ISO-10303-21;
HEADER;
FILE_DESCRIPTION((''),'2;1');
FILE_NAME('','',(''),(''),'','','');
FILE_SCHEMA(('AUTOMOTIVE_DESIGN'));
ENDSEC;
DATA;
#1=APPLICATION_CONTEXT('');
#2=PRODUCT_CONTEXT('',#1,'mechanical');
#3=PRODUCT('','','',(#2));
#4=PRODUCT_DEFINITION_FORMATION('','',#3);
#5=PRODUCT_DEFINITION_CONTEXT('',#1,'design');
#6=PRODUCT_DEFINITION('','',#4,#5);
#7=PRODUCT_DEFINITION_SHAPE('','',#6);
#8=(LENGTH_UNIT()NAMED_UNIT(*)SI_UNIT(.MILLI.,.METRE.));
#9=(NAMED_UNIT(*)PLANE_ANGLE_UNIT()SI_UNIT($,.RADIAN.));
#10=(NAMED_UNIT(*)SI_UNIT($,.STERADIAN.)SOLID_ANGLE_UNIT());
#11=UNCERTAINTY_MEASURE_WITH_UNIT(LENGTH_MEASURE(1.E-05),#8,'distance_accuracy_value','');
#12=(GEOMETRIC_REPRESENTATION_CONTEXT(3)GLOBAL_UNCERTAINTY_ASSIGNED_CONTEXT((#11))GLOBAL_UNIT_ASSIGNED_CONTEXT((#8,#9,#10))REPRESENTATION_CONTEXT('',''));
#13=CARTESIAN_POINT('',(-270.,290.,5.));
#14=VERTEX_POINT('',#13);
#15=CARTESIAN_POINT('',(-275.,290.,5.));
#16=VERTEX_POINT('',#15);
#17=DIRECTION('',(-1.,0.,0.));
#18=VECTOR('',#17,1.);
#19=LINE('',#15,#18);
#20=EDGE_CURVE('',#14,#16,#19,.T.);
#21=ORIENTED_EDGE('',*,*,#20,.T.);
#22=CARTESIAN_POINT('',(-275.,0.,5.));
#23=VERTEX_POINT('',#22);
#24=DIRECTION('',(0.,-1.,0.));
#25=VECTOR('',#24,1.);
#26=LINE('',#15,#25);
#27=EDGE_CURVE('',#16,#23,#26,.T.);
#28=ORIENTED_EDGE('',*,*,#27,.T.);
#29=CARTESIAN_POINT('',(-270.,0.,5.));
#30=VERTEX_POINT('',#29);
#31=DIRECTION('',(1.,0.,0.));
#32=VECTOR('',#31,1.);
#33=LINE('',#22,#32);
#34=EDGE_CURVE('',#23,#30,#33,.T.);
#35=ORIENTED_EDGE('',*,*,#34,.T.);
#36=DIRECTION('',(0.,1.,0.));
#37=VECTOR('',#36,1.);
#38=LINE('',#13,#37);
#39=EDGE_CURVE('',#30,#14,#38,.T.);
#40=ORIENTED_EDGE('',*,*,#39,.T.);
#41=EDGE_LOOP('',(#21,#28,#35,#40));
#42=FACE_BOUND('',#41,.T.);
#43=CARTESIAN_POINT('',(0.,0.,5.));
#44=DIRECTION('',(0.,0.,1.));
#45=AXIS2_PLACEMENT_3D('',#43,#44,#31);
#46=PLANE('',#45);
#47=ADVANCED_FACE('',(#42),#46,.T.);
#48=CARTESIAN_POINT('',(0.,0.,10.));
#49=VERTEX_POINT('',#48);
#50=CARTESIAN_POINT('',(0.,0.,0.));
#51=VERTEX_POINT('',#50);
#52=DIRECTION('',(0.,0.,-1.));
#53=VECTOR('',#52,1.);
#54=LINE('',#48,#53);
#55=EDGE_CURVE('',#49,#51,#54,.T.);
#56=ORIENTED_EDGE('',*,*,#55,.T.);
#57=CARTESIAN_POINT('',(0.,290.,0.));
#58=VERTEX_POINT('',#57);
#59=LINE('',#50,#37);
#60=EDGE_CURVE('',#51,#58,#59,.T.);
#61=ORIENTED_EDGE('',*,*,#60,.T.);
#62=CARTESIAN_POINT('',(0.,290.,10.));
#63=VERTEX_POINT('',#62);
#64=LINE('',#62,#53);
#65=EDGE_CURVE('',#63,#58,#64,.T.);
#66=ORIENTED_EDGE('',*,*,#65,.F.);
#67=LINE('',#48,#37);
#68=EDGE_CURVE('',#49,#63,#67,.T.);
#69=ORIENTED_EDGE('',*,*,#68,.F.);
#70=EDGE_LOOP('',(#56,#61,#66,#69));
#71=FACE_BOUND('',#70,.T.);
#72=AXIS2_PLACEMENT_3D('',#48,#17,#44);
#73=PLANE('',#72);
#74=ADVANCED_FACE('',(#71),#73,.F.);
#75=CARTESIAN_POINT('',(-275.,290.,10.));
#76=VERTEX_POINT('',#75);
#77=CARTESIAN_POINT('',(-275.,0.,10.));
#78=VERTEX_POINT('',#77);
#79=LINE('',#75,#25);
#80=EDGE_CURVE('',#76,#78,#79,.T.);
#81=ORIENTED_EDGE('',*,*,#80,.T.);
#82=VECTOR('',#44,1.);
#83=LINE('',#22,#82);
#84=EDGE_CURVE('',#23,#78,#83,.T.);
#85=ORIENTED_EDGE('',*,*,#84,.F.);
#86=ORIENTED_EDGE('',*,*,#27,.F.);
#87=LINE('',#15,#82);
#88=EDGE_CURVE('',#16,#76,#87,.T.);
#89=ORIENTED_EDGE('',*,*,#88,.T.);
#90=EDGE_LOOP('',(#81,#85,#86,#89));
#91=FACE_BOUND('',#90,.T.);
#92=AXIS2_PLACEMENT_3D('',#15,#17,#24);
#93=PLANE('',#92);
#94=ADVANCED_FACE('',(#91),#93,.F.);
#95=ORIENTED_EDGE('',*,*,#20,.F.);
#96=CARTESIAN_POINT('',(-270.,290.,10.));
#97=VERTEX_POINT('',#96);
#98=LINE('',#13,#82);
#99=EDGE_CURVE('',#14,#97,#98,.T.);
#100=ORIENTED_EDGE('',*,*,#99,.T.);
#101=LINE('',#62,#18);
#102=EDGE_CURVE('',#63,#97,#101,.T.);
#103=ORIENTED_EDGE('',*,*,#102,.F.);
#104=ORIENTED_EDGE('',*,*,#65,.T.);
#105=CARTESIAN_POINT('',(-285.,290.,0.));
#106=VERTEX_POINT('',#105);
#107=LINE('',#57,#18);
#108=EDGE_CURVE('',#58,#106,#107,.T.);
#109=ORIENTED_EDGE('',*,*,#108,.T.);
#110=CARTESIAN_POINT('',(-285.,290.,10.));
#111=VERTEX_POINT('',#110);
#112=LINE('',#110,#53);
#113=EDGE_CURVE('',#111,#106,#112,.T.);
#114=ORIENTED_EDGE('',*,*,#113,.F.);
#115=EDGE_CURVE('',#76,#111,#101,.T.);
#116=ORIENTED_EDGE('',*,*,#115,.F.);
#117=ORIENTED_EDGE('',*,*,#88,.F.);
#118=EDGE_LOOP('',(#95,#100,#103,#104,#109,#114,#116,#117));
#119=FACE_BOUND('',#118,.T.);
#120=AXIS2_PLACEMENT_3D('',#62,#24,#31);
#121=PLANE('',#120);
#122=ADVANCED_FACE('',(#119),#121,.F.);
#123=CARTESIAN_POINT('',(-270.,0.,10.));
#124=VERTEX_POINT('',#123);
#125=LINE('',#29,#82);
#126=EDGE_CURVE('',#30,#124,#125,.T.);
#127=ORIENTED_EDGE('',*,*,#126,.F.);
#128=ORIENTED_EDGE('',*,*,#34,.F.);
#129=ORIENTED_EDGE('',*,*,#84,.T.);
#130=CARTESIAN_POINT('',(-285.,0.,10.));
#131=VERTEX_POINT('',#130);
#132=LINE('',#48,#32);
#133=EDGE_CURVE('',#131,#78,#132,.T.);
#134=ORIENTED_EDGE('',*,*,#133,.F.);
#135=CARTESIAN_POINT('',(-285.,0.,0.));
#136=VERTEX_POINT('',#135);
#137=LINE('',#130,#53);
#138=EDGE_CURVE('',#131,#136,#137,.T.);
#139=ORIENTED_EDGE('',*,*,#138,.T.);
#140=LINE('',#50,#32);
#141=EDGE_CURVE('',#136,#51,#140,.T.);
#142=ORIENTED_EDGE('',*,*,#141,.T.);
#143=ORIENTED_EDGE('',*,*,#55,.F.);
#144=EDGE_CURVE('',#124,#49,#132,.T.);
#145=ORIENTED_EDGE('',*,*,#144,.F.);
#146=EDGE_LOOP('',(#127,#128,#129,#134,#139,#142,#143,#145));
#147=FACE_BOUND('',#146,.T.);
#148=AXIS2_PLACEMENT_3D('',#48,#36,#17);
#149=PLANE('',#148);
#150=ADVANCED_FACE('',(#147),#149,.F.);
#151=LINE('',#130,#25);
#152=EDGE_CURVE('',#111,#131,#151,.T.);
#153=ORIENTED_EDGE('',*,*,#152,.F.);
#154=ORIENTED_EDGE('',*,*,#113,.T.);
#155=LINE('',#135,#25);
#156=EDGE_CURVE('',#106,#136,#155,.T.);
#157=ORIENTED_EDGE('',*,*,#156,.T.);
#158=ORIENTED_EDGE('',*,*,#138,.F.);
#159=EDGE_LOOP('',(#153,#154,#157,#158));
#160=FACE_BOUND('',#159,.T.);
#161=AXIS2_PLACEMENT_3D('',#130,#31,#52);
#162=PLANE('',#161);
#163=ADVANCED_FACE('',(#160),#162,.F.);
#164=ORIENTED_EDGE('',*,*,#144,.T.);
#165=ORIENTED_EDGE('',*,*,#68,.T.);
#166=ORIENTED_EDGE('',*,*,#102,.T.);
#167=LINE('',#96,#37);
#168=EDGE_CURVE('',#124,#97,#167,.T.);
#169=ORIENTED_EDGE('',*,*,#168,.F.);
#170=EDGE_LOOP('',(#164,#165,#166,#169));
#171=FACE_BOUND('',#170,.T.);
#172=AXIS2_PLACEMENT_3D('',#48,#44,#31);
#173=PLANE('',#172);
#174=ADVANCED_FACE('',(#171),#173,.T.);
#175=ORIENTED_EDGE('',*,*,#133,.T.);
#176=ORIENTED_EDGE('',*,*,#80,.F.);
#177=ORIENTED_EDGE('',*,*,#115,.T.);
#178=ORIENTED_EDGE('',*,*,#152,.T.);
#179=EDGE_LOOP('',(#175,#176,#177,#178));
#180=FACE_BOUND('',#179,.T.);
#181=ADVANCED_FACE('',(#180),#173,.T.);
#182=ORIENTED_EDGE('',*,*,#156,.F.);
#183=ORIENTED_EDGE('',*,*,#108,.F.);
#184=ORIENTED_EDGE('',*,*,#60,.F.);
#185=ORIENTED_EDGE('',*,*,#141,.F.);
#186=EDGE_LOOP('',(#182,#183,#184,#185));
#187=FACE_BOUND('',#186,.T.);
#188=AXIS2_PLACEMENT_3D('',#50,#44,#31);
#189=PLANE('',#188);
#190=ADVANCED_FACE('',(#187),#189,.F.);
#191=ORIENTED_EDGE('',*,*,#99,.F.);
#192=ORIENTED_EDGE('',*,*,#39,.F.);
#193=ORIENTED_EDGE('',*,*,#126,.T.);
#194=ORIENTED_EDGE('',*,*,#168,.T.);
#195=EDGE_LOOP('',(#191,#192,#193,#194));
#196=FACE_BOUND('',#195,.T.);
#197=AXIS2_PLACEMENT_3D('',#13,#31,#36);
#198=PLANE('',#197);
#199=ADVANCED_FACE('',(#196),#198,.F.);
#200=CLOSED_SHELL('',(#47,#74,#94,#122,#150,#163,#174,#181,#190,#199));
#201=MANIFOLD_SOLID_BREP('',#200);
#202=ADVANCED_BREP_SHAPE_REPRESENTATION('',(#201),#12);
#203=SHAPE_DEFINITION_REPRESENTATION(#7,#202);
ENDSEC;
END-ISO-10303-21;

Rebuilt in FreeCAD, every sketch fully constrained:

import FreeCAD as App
import Part
import Sketcher
Q = App.Units.Quantity


def add_polygon(sketch, points):
    """Adds a closed chain of lines whose ends are joined by coincident constraints."""
    first, n = sketch.GeometryCount, len(points)
    for a, b in zip(points, points[1:] + points[:1]):
        sketch.addGeometry(Part.LineSegment(App.Vector(*a, 0), App.Vector(*b, 0)), False)
    for i in range(n):
        sketch.addConstraint(Sketcher.Constraint("Coincident", first + i, 2, first + (i + 1) % n, 1))

doc = App.newDocument("Part")
body = doc.addObject("PartDesign::Body", "Body")

sketch1 = body.newObject("Sketcher::SketchObject", "Sketch")
sketch1.AttachmentSupport = (doc.getObject("XY_Plane"), [""])
sketch1.MapMode = "FlatFace"
add_polygon(sketch1, [(-285, 290), (-285, 0), (0, 0), (0, 290)])
sketch1.addConstraint(Sketcher.Constraint("Vertical", 0))
sketch1.addConstraint(Sketcher.Constraint("Horizontal", 1))
sketch1.addConstraint(Sketcher.Constraint("Vertical", 2))
sketch1.addConstraint(Sketcher.Constraint("Horizontal", 3))
sketch1.addConstraint(Sketcher.Constraint("Coincident", 1, 2, -1, 1))
sketch1.addConstraint(Sketcher.Constraint("DistanceX", 1, 1, 1, 2, Q("285 mm")))
sketch1.addConstraint(Sketcher.Constraint("DistanceY", 0, 2, 0, 1, Q("290 mm")))
pad1 = body.newObject("PartDesign::Pad", "Pad")
pad1.Profile = sketch1
pad1.Length = 10

sketch2 = body.newObject("Sketcher::SketchObject", "Sketch001")
sketch2.AttachmentSupport = (doc.getObject("XY_Plane"), [""])
sketch2.MapMode = "FlatFace"
sketch2.AttachmentOffset = App.Placement(App.Vector(0, 0, 10), App.Rotation())
add_polygon(sketch2, [(-275, 290), (-275, 0), (-270, 0), (-270, 290)])
sketch2.addConstraint(Sketcher.Constraint("Vertical", 0))
sketch2.addConstraint(Sketcher.Constraint("Horizontal", 1))
sketch2.addConstraint(Sketcher.Constraint("Vertical", 2))
sketch2.addConstraint(Sketcher.Constraint("Horizontal", 3))
sketch2.addConstraint(Sketcher.Constraint("PointOnObject", 0, 2, -1))
sketch2.addConstraint(Sketcher.Constraint("DistanceX", 1, 1, 1, 2, Q("5 mm")))
sketch2.addConstraint(Sketcher.Constraint("DistanceY", 0, 2, 0, 1, Q("290 mm")))
sketch2.addConstraint(Sketcher.Constraint("DistanceX", 0, 2, -1, 1, Q("275 mm")))
pocket1 = body.newObject("PartDesign::Pocket", "Pocket")
pocket1.Profile = sketch2
pocket1.Length = 5

doc.recompute()
